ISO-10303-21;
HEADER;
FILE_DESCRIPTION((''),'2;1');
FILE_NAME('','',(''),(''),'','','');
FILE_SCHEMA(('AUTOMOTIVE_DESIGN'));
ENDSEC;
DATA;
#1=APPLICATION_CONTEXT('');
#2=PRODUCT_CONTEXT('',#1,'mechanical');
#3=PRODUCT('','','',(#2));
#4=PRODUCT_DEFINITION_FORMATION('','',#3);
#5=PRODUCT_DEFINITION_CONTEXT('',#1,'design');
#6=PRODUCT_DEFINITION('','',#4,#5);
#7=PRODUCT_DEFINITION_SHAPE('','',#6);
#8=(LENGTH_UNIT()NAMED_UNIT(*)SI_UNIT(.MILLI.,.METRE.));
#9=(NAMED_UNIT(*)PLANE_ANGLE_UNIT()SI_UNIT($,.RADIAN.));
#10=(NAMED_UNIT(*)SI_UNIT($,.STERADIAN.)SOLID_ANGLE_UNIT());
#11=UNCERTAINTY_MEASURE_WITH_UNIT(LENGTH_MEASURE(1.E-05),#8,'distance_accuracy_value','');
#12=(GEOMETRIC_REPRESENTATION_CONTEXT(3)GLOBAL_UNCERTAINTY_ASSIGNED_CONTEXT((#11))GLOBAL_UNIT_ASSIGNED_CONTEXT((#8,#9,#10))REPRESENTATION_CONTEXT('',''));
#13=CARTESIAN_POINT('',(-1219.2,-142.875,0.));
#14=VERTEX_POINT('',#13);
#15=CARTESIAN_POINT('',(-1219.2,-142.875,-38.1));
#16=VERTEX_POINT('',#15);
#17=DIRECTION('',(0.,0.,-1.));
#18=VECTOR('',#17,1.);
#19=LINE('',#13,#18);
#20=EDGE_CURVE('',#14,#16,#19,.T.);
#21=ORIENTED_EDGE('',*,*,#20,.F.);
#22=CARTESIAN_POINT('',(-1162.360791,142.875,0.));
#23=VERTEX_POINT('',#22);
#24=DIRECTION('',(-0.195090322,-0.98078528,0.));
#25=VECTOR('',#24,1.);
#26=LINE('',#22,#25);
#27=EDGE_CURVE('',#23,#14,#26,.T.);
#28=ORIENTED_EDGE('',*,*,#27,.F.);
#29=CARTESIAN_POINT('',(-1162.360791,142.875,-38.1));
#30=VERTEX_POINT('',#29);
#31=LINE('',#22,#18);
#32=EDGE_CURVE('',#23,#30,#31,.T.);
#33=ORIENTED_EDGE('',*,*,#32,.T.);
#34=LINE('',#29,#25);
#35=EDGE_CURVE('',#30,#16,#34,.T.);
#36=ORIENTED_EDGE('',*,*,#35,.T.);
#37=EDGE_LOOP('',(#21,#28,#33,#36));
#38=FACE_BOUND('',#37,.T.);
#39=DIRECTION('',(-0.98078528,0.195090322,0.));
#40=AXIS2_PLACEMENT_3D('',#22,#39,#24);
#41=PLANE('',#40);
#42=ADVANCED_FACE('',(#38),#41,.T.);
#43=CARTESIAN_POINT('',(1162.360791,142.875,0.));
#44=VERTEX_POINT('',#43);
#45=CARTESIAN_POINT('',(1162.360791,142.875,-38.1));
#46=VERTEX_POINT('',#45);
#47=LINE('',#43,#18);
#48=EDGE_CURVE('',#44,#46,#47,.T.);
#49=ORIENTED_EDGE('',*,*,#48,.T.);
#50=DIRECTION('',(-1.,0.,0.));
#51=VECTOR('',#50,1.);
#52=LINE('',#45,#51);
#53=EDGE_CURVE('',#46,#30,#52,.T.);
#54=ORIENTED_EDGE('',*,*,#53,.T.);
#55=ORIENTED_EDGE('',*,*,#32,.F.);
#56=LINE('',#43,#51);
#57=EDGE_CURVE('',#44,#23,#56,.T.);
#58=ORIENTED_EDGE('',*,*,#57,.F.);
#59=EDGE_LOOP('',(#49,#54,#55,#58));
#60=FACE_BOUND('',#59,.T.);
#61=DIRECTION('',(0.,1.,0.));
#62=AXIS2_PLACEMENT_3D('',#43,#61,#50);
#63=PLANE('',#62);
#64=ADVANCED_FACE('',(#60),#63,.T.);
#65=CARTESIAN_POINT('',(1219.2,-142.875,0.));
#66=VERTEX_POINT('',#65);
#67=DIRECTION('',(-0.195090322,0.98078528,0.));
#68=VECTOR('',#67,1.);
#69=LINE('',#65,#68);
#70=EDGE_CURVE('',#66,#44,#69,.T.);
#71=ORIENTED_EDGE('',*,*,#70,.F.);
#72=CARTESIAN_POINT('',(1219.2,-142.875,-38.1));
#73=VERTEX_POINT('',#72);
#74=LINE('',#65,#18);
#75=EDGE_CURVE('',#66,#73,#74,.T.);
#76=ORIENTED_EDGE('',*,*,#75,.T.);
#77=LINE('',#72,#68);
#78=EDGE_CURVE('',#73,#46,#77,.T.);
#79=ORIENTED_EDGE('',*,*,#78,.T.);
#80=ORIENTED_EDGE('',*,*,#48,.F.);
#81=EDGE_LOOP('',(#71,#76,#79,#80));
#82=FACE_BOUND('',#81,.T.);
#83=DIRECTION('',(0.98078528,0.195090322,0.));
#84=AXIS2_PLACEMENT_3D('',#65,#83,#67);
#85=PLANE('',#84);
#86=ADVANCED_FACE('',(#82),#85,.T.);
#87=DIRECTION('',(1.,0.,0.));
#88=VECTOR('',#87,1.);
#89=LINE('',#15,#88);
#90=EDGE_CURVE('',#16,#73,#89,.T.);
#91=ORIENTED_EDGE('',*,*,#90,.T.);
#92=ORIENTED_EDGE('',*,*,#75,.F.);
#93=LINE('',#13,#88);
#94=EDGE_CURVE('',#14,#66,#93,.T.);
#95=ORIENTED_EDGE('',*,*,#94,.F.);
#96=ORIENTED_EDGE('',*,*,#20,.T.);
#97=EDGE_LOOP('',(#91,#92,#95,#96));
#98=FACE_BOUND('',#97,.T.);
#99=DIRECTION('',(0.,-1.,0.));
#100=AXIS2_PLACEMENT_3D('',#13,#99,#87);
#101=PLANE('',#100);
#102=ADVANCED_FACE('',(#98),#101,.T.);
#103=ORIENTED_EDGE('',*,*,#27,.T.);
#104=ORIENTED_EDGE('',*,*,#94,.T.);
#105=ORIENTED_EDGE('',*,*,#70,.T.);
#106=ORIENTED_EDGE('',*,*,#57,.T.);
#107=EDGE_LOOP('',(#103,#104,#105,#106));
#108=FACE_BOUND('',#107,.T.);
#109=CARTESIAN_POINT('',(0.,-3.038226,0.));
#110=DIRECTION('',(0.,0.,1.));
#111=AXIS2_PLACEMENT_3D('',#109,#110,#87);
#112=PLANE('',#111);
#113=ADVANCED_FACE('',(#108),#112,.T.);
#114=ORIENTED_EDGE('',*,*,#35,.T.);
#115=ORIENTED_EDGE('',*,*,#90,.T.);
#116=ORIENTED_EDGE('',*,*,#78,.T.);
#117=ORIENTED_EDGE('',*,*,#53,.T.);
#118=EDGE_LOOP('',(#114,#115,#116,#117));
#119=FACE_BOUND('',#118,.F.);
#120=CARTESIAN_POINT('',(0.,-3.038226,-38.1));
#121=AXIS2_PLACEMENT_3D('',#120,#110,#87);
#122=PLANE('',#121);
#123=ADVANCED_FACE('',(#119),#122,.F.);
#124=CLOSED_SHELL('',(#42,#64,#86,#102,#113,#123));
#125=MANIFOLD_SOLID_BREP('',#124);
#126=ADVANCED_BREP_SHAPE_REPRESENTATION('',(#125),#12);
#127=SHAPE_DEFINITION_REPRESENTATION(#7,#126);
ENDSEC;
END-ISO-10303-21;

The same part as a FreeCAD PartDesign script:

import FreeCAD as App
import Part
import Sketcher
Q = App.Units.Quantity


def add_polygon(sketch, points):
    """Adds a closed chain of lines whose ends are joined by coincident constraints."""
    first, n = sketch.GeometryCount, len(points)
    for a, b in zip(points, points[1:] + points[:1]):
        sketch.addGeometry(Part.LineSegment(App.Vector(*a, 0), App.Vector(*b, 0)), False)
    for i in range(n):
        sketch.addConstraint(Sketcher.Constraint("Coincident", first + i, 2, first + (i + 1) % n, 1))

doc = App.newDocument("Part")
body = doc.addObject("PartDesign::Body", "Body")

# Sketch on XY plane
sketch1 = body.newObject("Sketcher::SketchObject", "Sketch")
sketch1.AttachmentSupport = (doc.getObject("XY_Plane"), [""])
sketch1.MapMode = "FlatFace"
add_polygon(sketch1, [(1162, 143), (-1162, 143), (-1219, -143), (1219, -143)])  # lines 0-3
sketch1.addConstraint(Sketcher.Constraint("Horizontal", 0))
sketch1.addConstraint(Sketcher.Constraint("Horizontal", 2))
sketch1.addConstraint(Sketcher.Constraint("Equal", 1, 3))
sketch1.addConstraint(Sketcher.Constraint("DistanceX", 2, 1, 2, 2, Q("96 in")))
sketch1.addConstraint(Sketcher.Constraint("DistanceX", 1, 2, -1, 1, Q("48 in")))
sketch1.addConstraint(Sketcher.Constraint("Angle", 1, Q("-101.25 deg")))
sketch1.addConstraint(Sketcher.Constraint("DistanceY", 1, 2, 0, 2, Q("11.25 in")))
sketch1.addConstraint(Sketcher.Constraint("DistanceY", -1, 1, 0, 2, Q("5.625 in")))
pad1 = body.newObject("PartDesign::Pad", "Pad")
pad1.Profile = sketch1
pad1.Length = Q("1.5 in")
pad1.Reversed = True

doc.recompute()
